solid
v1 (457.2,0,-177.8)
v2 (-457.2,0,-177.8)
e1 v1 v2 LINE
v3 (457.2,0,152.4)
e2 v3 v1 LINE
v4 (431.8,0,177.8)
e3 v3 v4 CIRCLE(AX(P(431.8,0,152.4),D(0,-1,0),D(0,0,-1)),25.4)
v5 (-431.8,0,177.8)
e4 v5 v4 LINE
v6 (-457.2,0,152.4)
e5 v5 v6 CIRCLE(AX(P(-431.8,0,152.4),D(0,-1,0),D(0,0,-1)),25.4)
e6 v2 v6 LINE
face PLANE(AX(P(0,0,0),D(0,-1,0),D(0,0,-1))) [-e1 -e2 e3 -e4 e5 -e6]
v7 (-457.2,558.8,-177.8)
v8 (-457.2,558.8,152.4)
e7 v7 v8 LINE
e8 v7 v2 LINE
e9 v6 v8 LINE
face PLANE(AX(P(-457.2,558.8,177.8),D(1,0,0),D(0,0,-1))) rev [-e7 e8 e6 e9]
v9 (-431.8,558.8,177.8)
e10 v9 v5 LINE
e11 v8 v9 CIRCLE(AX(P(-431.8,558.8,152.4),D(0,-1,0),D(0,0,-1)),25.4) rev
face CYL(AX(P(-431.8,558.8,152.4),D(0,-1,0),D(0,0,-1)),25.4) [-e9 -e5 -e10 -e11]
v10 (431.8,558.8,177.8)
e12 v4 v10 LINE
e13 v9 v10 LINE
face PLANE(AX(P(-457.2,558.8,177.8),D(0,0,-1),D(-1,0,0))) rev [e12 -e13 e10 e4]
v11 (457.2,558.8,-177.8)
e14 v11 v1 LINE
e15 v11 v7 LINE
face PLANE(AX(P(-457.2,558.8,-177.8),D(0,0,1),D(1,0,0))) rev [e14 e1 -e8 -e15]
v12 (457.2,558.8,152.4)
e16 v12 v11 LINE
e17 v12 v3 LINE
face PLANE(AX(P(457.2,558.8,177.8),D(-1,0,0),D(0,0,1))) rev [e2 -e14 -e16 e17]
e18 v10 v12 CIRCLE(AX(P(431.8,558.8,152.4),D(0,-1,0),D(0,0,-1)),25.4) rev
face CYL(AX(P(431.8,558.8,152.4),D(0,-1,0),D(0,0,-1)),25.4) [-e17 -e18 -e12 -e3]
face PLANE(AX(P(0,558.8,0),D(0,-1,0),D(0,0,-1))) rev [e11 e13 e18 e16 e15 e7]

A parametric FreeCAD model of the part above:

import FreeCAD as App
import Part
import Sketcher

V = App.Vector
Q = App.Units.Quantity


def edges_at(feature, points):
    """Names of the edges that pass closest to the given points."""
    edges = feature.Shape.Edges
    near = lambda p: min(range(len(edges)), key=lambda i: edges[i].distToShape(Part.Vertex(*p))[0])
    return sorted({f"Edge{near(p) + 1}" for p in points})

doc = App.newDocument("Part")
body = doc.addObject("PartDesign::Body", "Body")

# Sketch on XZ plane
sketch1 = body.newObject("Sketcher::SketchObject", "Sketch")
sketch1.AttachmentSupport = (doc.getObject("XZ_Plane"), [""])
sketch1.MapMode = "FlatFace"
sketch1.addGeometry([
    Part.LineSegment(V(-457.2, -177.8, 0), V(-457.2, 177.8, 0)),
    Part.LineSegment(V(-457.2, 177.8, 0), V(457.2, 177.8, 0)),
    Part.LineSegment(V(457.2, 177.8, 0), V(457.2, -177.8, 0)),
    Part.LineSegment(V(457.2, -177.8, 0), V(-457.2, -177.8, 0)),
], False)
sketch1.addConstraint([
    Sketcher.Constraint("Coincident", 0, 2, 1, 1),
    Sketcher.Constraint("Coincident", 1, 2, 2, 1),
    Sketcher.Constraint("Coincident", 2, 2, 3, 1),
    Sketcher.Constraint("Coincident", 3, 2, 0, 1),
    Sketcher.Constraint("Vertical", 0),
    Sketcher.Constraint("Horizontal", 1),
    Sketcher.Constraint("Vertical", 2),
    Sketcher.Constraint("Horizontal", 3),
    Sketcher.Constraint("Symmetric", 0, 2, 2, 2, -1, 1),
    Sketcher.Constraint("DistanceX", 1, 1, 1, 2, Q("36 in")),
    Sketcher.Constraint("DistanceY", 0, 1, 0, 2, Q("14 in")),
])
pad1 = body.newObject("PartDesign::Pad", "Pad")
pad1.Profile = sketch1
pad1.Length = Q("22 in")
pad1.Reversed = True
doc.recompute()

fillet = body.newObject("PartDesign::Fillet", "Fillet")
fillet.Base = (pad1, edges_at(pad1, [(457.2, 279.4, 177.8), (-457.2, 279.4, 177.8)]))
fillet.Radius = Q("1 in")

doc.recompute()
